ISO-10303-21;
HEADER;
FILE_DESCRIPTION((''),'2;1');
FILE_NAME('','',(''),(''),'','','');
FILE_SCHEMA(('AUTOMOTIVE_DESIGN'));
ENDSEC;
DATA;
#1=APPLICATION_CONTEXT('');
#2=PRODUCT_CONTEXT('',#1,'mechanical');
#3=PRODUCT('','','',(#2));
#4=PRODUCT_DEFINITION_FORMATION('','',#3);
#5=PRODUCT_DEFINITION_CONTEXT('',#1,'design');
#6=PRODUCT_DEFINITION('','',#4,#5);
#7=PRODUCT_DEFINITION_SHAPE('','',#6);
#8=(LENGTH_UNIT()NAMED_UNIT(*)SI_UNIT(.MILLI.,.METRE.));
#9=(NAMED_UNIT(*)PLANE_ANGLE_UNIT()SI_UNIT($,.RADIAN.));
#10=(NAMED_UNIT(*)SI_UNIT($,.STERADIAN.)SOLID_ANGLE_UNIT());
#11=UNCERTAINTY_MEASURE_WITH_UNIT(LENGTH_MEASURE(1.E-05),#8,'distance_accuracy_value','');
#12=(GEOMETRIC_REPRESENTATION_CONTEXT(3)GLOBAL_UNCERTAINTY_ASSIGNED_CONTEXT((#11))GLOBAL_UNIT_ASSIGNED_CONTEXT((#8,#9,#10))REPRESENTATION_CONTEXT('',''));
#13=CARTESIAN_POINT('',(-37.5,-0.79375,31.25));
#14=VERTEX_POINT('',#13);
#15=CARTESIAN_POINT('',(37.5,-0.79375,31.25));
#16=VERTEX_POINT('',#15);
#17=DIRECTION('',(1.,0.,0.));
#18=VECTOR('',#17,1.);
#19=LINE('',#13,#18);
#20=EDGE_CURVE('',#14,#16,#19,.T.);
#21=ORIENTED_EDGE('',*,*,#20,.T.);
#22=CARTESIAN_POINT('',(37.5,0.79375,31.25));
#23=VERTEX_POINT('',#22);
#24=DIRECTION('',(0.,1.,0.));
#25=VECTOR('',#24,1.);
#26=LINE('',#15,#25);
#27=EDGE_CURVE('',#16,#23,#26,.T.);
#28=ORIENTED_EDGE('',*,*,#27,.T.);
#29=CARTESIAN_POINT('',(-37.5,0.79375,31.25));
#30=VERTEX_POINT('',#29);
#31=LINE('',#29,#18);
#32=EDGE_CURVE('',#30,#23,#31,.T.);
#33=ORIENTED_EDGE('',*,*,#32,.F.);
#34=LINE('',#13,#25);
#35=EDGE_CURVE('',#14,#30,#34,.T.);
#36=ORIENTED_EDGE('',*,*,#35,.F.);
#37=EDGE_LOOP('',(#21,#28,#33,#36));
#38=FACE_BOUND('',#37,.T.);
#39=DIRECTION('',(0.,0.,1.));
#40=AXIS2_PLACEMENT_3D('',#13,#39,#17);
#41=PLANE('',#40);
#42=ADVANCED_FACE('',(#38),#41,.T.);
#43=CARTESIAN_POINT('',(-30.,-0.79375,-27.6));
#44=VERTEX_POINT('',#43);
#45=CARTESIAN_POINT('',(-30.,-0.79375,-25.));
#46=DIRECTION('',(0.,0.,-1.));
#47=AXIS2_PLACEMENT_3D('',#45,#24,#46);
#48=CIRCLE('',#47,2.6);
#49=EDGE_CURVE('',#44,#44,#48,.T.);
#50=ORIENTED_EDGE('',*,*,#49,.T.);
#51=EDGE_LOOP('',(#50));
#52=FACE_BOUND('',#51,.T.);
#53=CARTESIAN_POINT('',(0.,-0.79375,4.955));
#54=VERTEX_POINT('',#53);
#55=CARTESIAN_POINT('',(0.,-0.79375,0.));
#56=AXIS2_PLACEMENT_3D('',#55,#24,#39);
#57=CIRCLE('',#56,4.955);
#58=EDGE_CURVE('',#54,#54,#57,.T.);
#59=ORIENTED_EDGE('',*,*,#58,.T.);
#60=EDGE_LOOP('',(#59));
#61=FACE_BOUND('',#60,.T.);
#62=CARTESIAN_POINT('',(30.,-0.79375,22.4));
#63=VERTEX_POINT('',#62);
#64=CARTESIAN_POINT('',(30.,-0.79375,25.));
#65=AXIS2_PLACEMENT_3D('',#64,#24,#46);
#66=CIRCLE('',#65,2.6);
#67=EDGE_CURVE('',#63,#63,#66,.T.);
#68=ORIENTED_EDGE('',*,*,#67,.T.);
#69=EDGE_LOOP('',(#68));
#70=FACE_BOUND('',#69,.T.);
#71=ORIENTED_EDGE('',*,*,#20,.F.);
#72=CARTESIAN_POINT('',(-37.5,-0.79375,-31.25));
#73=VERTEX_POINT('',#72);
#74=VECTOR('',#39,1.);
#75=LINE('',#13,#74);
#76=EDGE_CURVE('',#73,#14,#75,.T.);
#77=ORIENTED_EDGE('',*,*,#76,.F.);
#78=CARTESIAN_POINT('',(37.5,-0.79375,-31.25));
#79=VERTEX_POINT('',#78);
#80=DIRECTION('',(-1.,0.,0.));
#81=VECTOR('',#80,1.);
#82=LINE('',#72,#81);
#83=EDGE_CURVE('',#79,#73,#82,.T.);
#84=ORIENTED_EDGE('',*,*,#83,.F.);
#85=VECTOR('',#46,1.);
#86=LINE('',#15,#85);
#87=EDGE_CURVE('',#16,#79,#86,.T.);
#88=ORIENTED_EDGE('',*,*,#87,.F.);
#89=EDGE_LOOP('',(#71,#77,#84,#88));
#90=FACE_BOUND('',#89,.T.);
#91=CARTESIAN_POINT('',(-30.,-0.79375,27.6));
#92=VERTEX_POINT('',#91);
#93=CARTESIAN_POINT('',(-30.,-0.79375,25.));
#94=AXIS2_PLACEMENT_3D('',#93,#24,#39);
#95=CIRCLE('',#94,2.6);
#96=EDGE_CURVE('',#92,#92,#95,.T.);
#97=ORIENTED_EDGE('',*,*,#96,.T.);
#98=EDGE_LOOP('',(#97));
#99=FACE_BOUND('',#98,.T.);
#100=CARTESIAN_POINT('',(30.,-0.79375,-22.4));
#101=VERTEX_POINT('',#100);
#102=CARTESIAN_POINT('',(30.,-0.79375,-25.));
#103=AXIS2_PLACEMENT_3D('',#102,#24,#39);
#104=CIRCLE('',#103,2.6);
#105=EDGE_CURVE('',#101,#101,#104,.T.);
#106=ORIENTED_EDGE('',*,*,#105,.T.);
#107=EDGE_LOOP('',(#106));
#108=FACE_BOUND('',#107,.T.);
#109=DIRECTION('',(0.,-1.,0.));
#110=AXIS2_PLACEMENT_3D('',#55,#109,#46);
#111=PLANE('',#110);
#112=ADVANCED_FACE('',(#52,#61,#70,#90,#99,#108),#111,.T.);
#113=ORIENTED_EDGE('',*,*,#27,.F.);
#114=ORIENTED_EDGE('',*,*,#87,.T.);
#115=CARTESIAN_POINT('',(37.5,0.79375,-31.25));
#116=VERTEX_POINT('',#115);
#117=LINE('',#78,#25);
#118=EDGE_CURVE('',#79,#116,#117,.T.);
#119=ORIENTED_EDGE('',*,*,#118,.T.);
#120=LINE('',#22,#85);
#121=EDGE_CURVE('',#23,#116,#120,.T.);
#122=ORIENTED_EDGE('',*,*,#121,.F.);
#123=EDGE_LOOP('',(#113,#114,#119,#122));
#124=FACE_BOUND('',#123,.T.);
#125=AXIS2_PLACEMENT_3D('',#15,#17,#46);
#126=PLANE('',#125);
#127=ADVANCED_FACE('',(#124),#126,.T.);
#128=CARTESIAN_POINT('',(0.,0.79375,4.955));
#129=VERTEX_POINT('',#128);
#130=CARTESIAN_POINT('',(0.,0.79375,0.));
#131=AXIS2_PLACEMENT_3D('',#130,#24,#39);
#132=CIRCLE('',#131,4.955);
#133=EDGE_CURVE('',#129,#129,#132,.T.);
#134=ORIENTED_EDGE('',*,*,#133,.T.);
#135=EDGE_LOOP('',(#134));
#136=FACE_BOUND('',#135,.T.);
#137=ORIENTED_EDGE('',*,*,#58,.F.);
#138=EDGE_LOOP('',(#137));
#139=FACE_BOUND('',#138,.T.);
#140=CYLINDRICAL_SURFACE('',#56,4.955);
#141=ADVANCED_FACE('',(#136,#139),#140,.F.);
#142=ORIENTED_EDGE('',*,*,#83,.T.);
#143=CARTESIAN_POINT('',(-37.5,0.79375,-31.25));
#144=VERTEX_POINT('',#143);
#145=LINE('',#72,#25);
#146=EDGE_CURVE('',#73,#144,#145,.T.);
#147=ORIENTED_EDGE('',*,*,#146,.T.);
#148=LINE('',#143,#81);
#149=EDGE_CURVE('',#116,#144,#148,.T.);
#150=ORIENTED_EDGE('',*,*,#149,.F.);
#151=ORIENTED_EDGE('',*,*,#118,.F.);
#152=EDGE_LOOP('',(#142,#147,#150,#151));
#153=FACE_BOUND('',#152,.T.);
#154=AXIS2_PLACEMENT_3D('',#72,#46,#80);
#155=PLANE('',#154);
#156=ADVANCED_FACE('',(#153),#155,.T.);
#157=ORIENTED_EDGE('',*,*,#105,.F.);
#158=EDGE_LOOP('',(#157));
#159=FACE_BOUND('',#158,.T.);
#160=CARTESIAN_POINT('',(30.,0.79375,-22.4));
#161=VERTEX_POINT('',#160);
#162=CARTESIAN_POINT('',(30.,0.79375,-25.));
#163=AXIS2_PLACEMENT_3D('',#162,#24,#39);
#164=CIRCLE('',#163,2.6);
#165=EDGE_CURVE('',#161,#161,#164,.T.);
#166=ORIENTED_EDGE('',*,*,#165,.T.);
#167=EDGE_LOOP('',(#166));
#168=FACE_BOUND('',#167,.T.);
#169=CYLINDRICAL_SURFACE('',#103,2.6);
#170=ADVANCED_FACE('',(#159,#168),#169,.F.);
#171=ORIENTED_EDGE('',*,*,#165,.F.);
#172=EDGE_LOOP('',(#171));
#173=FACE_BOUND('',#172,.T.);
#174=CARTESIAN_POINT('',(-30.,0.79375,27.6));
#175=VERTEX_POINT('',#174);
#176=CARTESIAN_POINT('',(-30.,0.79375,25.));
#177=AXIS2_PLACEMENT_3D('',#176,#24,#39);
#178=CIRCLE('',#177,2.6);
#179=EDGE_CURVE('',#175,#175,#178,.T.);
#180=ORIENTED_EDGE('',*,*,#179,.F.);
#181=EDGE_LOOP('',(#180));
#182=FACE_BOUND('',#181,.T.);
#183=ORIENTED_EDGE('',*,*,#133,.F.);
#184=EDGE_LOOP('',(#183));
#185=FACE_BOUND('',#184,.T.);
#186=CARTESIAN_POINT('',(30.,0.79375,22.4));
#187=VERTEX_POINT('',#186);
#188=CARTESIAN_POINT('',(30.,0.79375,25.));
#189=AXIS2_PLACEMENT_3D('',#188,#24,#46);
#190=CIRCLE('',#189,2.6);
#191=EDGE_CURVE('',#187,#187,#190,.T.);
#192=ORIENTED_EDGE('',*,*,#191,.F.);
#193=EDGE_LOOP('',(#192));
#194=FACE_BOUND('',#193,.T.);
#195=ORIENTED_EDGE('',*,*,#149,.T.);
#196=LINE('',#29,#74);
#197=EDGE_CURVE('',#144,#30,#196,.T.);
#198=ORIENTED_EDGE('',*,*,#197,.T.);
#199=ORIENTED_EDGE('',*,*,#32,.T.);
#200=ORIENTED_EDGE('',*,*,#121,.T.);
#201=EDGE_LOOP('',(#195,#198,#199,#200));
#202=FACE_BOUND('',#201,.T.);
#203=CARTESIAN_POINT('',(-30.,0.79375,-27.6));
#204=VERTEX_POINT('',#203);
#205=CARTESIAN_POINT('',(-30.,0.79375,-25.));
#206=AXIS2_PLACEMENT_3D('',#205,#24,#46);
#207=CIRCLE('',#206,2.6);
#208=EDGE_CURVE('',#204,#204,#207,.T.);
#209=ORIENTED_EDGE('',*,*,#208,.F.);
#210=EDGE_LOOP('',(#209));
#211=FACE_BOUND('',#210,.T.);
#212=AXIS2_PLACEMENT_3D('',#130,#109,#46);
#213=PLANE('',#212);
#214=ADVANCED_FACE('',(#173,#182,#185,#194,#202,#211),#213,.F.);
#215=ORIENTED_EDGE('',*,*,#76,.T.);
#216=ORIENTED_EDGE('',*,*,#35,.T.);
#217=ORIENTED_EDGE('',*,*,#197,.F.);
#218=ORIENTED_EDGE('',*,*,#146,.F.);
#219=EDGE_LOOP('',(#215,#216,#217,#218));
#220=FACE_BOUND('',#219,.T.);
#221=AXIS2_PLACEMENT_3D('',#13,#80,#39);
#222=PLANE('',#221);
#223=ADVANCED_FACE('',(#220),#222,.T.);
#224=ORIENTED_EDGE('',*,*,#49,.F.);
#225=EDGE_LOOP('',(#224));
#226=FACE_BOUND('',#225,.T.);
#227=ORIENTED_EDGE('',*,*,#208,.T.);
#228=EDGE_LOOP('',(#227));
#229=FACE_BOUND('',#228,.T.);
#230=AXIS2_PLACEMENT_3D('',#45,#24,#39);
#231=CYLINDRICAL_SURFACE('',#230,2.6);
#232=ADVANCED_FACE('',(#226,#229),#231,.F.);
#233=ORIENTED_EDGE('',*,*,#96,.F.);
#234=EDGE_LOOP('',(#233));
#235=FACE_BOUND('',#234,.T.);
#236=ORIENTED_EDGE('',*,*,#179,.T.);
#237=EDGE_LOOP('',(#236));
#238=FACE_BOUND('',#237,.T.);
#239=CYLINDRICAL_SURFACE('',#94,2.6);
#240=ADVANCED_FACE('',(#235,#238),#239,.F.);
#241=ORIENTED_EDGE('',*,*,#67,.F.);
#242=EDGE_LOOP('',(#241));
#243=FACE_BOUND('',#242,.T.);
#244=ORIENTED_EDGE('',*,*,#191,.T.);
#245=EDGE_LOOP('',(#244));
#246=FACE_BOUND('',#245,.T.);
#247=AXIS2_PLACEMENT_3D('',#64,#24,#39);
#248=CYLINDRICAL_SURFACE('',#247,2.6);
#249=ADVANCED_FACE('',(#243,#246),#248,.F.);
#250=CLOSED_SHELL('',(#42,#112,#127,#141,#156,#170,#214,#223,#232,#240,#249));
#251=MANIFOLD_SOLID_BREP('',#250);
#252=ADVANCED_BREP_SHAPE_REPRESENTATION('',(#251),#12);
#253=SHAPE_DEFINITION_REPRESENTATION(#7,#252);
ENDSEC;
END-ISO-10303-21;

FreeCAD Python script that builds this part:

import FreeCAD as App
import Part
import Sketcher

V = App.Vector


def add_polygon(sketch, points):
    """Adds a closed chain of lines whose ends are joined by coincident constraints."""
    first, n = sketch.GeometryCount, len(points)
    for a, b in zip(points, points[1:] + points[:1]):
        sketch.addGeometry(Part.LineSegment(App.Vector(*a, 0), App.Vector(*b, 0)), False)
    for i in range(n):
        sketch.addConstraint(Sketcher.Constraint("Coincident", first + i, 2, first + (i + 1) % n, 1))

doc = App.newDocument("Part")
body = doc.addObject("PartDesign::Body", "Body")

sketch1 = body.newObject("Sketcher::SketchObject", "Sketch")
sketch1.AttachmentSupport = (doc.getObject("XZ_Plane"), [""])
sketch1.MapMode = "FlatFace"
add_polygon(sketch1, [(-37.5, -31.2), (-37.5, 31.2), (37.5, 31.2), (37.5, -31.2)])
sketch1.addGeometry(Part.Circle(V(-30, 25, 0), V(0, 0, 1), 2.6), False)
sketch1.addGeometry(Part.Circle(V(30, 25, 0), V(0, 0, 1), 2.6), False)
sketch1.addGeometry(Part.Circle(V(-30, -25, 0), V(0, 0, 1), 2.6), False)
sketch1.addGeometry(Part.Circle(V(0, 0, 0), V(0, 0, 1), 5), False)
sketch1.addGeometry(Part.Circle(V(30, -25, 0), V(0, 0, 1), 2.6), False)
sketch1.addConstraint([
    Sketcher.Constraint("Vertical", 0),
    Sketcher.Constraint("Horizontal", 1),
    Sketcher.Constraint("Vertical", 2),
    Sketcher.Constraint("Horizontal", 3),
    Sketcher.Constraint("Coincident", 7, 3, -1, 1),
    Sketcher.Constraint("Equal", 4, 5),
    Sketcher.Constraint("Equal", 5, 6),
    Sketcher.Constraint("Equal", 6, 8),
    Sketcher.Constraint("Symmetric", 5, 3, 6, 3, -1, 1),
    Sketcher.Constraint("Symmetric", 4, 3, 8, 3, -1, 1),
    Sketcher.Constraint("Symmetric", 0, 2, 2, 2, -1, 1),
    Sketcher.Constraint("Symmetric", 4, 3, 5, 3, -2),
    Sketcher.Constraint("Diameter", 4, 5.2),
    Sketcher.Constraint("Diameter", 7, 9.91),
    Sketcher.Constraint("DistanceX", 1, 1, 1, 2, 75.0),
    Sketcher.Constraint("DistanceY", 0, 1, 0, 2, 62.5),
    Sketcher.Constraint("DistanceX", 4, 3, -1, 1, 30.0),
    Sketcher.Constraint("DistanceY", -1, 1, 4, 3, 25.0),
])
pad1 = body.newObject("PartDesign::Pad", "Pad")
pad1.Profile = sketch1
pad1.Type = "TwoLengths"
pad1.Length = 0.79375
pad1.Length2 = 0.79375
pad1.Reversed = True

doc.recompute()
